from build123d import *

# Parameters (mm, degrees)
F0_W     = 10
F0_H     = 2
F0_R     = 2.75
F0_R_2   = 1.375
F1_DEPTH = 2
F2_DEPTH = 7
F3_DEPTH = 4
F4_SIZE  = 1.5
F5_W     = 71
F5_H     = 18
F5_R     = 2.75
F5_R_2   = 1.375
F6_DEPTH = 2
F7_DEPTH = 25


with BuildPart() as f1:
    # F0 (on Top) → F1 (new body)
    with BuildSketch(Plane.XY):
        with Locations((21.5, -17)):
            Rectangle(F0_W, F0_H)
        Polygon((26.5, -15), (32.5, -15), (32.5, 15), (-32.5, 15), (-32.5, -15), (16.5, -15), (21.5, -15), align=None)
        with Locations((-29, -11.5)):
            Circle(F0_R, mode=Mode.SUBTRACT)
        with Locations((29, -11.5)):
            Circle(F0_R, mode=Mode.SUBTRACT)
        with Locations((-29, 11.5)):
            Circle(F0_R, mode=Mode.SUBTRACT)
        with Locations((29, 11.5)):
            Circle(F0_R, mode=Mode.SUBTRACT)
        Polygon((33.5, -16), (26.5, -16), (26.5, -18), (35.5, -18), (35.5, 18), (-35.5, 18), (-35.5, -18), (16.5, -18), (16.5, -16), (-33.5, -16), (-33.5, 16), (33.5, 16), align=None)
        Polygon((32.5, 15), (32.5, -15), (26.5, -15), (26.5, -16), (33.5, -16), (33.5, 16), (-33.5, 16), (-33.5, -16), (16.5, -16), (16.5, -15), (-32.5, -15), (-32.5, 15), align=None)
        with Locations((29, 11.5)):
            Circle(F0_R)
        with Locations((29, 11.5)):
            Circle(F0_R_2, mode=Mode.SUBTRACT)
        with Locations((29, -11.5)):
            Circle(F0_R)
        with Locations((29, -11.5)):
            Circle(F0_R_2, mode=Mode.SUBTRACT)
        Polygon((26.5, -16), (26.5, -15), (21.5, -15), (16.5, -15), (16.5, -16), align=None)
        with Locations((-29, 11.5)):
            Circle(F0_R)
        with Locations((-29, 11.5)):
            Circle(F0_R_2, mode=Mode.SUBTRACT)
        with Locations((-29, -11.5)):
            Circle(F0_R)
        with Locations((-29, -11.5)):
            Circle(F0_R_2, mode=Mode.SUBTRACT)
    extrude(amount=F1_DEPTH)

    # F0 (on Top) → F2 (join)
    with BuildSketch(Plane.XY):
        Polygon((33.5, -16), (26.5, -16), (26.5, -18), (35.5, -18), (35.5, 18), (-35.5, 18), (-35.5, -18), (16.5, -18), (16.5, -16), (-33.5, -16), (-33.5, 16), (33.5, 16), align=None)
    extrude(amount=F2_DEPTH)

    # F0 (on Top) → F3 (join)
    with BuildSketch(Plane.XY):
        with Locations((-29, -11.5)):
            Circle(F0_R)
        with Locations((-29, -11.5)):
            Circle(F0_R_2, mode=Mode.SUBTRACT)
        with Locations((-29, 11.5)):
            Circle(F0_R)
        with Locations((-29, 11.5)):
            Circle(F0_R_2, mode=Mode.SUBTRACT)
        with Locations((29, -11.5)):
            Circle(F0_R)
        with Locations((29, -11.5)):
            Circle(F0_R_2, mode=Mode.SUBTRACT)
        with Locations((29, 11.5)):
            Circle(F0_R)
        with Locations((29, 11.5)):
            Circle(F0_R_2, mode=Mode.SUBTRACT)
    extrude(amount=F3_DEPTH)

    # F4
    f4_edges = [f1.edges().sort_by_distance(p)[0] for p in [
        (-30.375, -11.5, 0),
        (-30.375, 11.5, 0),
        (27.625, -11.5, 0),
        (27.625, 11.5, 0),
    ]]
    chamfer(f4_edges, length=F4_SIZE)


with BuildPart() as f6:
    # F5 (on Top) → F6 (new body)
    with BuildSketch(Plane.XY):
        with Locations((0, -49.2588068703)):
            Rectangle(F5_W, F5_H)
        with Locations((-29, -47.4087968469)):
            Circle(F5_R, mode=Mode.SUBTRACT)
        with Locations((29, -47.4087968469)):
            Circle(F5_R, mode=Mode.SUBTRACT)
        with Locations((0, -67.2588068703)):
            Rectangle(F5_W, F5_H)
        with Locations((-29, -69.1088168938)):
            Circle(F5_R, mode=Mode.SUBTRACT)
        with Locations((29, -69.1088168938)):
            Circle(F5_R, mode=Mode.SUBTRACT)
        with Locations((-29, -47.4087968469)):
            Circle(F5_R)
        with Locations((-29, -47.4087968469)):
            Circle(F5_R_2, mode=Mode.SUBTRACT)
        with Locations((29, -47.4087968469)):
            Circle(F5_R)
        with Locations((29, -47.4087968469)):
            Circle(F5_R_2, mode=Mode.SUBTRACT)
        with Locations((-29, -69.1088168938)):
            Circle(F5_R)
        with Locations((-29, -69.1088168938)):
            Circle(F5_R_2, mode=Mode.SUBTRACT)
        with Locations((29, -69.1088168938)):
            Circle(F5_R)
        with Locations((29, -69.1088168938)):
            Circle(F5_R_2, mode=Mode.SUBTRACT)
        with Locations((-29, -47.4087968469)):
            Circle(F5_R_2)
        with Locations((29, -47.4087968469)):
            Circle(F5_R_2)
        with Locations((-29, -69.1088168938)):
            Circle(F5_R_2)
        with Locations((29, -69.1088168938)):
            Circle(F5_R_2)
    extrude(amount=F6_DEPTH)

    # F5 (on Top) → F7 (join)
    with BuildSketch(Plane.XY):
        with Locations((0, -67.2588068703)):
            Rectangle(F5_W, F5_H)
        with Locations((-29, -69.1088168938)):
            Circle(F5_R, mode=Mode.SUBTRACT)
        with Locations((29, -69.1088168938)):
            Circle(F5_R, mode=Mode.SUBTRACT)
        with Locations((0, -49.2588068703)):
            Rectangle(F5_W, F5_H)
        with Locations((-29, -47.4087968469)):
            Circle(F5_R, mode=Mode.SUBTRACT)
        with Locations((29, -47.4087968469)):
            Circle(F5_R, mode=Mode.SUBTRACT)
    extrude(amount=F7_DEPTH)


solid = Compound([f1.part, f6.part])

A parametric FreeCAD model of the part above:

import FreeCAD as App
import Part
import Sketcher

V = App.Vector
Q = App.Units.Quantity


def edges_at(feature, points):
    """Names of the edges that pass closest to the given points."""
    edges = feature.Shape.Edges
    near = lambda p: min(range(len(edges)), key=lambda i: edges[i].distToShape(Part.Vertex(*p))[0])
    return sorted({f"Edge{near(p) + 1}" for p in points})


def add_polygon(sketch, points):
    """Adds a closed chain of lines whose ends are joined by coincident constraints."""
    first, n = sketch.GeometryCount, len(points)
    for a, b in zip(points, points[1:] + points[:1]):
        sketch.addGeometry(Part.LineSegment(App.Vector(*a, 0), App.Vector(*b, 0)), False)
    for i in range(n):
        sketch.addConstraint(Sketcher.Constraint("Coincident", first + i, 2, first + (i + 1) % n, 1))

doc = App.newDocument("Part")
body = doc.addObject("PartDesign::Body", "Body")

sketch1 = doc.addObject("Sketcher::SketchObject", "Sketch")
body.addObject(sketch1)
sketch1.AttachmentSupport = (doc.XY_Plane, [""])
sketch1.MapMode = "FlatFace"
add_polygon(sketch1, [(35.5, -18), (35.5, 18), (-35.5, 18), (-35.5, -18)])
sketch1.addGeometry(Part.Circle(V(-29, -11.5, 0), V(0, 0, 1), 1.4), False)
sketch1.addGeometry(Part.Circle(V(29, -11.5, 0), V(0, 0, 1), 1.4), False)
sketch1.addGeometry(Part.Circle(V(-29, 11.5, 0), V(0, 0, 1), 1.4), False)
sketch1.addGeometry(Part.Circle(V(29, 11.5, 0), V(0, 0, 1), 1.4), False)
sketch1.addConstraint([
    Sketcher.Constraint("Vertical", 0),
    Sketcher.Constraint("Horizontal", 1),
    Sketcher.Constraint("Vertical", 2),
    Sketcher.Constraint("Horizontal", 3),
    Sketcher.Constraint("Equal", 4, 5),
    Sketcher.Constraint("Equal", 5, 6),
    Sketcher.Constraint("Equal", 6, 7),
    Sketcher.Constraint("Symmetric", 5, 3, 6, 3, -1, 1),
    Sketcher.Constraint("Symmetric", 4, 3, 7, 3, -1, 1),
    Sketcher.Constraint("Symmetric", 0, 2, 2, 2, -1, 1),
    Sketcher.Constraint("Symmetric", 4, 3, 5, 3, -2),
    Sketcher.Constraint("Diameter", 4, Q("2.75 mm")),
    Sketcher.Constraint("DistanceX", 1, 2, 1, 1, Q("71 mm")),
    Sketcher.Constraint("DistanceY", 0, 1, 0, 2, Q("36 mm")),
    Sketcher.Constraint("DistanceX", 4, 3, -1, 1, Q("29 mm")),
    Sketcher.Constraint("DistanceY", 4, 3, 6, 3, Q("23 mm")),
])
pad1 = doc.addObject("PartDesign::Pad", "Pad")
body.addObject(pad1)
pad1.Profile = sketch1
pad1.Length = 2

sketch2 = doc.addObject("Sketcher::SketchObject", "Sketch001")
body.addObject(sketch2)
sketch2.AttachmentSupport = (doc.XY_Plane, [""])
sketch2.MapMode = "FlatFace"
add_polygon(sketch2, [(33.5, -16), (26.5, -16), (26.5, -18), (35.5, -18), (35.5, 18), (-35.5, 18), (-35.5, -18), (16.5, -18), (16.5, -16), (-33.5, -16), (-33.5, 16), (33.5, 16)])
sketch2.addConstraint([
    Sketcher.Constraint("Horizontal", 0),
    Sketcher.Constraint("Vertical", 1),
    Sketcher.Constraint("Horizontal", 2),
    Sketcher.Constraint("Vertical", 3),
    Sketcher.Constraint("Horizontal", 4),
    Sketcher.Constraint("Vertical", 5),
    Sketcher.Constraint("Horizontal", 6),
    Sketcher.Constraint("Vertical", 7),
    Sketcher.Constraint("Horizontal", 8),
    Sketcher.Constraint("Vertical", 9),
    Sketcher.Constraint("Horizontal", 10),
    Sketcher.Constraint("Vertical", 11),
    Sketcher.Constraint("Symmetric", 2, 2, 4, 2, -1, 1),
    Sketcher.Constraint("Symmetric", 8, 2, 10, 2, -1, 1),
    Sketcher.Constraint("Horizontal", 2, 2, 5, 2),
    Sketcher.Constraint("Horizontal", 0, 2, 7, 2),
    Sketcher.Constraint("DistanceX", 0, 2, 0, 1, Q("7 mm")),
    Sketcher.Constraint("DistanceX", 2, 1, 2, 2, Q("9 mm")),
    Sketcher.Constraint("DistanceX", 4, 2, 4, 1, Q("71 mm")),
    Sketcher.Constraint("DistanceX", 6, 1, 6, 2, Q("52 mm")),
    Sketcher.Constraint("DistanceY", 1, 2, 1, 1, Q("2 mm")),
    Sketcher.Constraint("DistanceY", 3, 1, 3, 2, Q("36 mm")),
])
pad2 = doc.addObject("PartDesign::Pad", "Pad001")
body.addObject(pad2)
pad2.Profile = sketch2
pad2.Length = 7

sketch3 = doc.addObject("Sketcher::SketchObject", "Sketch002")
body.addObject(sketch3)
sketch3.AttachmentSupport = (doc.XY_Plane, [""])
sketch3.MapMode = "FlatFace"
sketch3.addGeometry([
    Part.Circle(V(-29, -11.5, 0), V(0, 0, 1), 2.8),
    Part.Circle(V(-29, -11.5, 0), V(0, 0, 1), 1.4),
    Part.Circle(V(-29, 11.5, 0), V(0, 0, 1), 2.8),
    Part.Circle(V(-29, 11.5, 0), V(0, 0, 1), 1.4),
    Part.Circle(V(29, -11.5, 0), V(0, 0, 1), 2.8),
    Part.Circle(V(29, -11.5, 0), V(0, 0, 1), 1.4),
    Part.Circle(V(29, 11.5, 0), V(0, 0, 1), 2.8),
    Part.Circle(V(29, 11.5, 0), V(0, 0, 1), 1.4),
], False)
sketch3.addConstraint([
    Sketcher.Constraint("Coincident", 1, 3, 0, 3),
    Sketcher.Constraint("Coincident", 3, 3, 2, 3),
    Sketcher.Constraint("Coincident", 5, 3, 4, 3),
    Sketcher.Constraint("Coincident", 7, 3, 6, 3),
    Sketcher.Constraint("Equal", 0, 2),
    Sketcher.Constraint("Equal", 1, 3),
    Sketcher.Constraint("Equal", 2, 4),
    Sketcher.Constraint("Equal", 3, 5),
    Sketcher.Constraint("Equal", 4, 6),
    Sketcher.Constraint("Equal", 5, 7),
    Sketcher.Constraint("Symmetric", 2, 3, 4, 3, -1, 1),
    Sketcher.Constraint("Symmetric", 0, 3, 6, 3, -1, 1),
    Sketcher.Constraint("Symmetric", 0, 3, 4, 3, -2),
    Sketcher.Constraint("Diameter", 0, Q("5.5 mm")),
    Sketcher.Constraint("Diameter", 1, Q("2.75 mm")),
    Sketcher.Constraint("DistanceX", 0, 3, -1, 1, Q("29 mm")),
    Sketcher.Constraint("DistanceY", 0, 3, 2, 3, Q("23 mm")),
])
pad3 = doc.addObject("PartDesign::Pad", "Pad002")
body.addObject(pad3)
pad3.Profile = sketch3
pad3.Length = 4
doc.recompute()

chamfer = doc.addObject("PartDesign::Chamfer", "Chamfer")
body.addObject(chamfer)
chamfer.Base = (pad3, edges_at(pad3, [
    (-30.375, -11.5, 0),
    (-30.375, 11.5, 0),
    (27.625, -11.5, 0),
    (27.625, 11.5, 0),
]))
chamfer.Size = 1.5
body2 = doc.addObject("PartDesign::Body", "Body001")

sketch4 = doc.addObject("Sketcher::SketchObject", "Sketch003")
body2.addObject(sketch4)
sketch4.AttachmentSupport = (doc.getObject("XY_Plane001"), [""])
sketch4.MapMode = "FlatFace"
add_polygon(sketch4, [(-36, -40), (-36, -76), (36, -76), (36, -40)])
sketch4.addConstraint([
    Sketcher.Constraint("Vertical", 0),
    Sketcher.Constraint("Horizontal", 1),
    Sketcher.Constraint("Vertical", 2),
    Sketcher.Constraint("Horizontal", 3),
    Sketcher.Constraint("DistanceX", 1, 1, 1, 2, Q("71 mm")),
    Sketcher.Constraint("DistanceY", 0, 2, 0, 1, Q("36 mm")),
    Sketcher.Constraint("DistanceX", 0, 2, -1, 1, Q("35.5 mm")),
    Sketcher.Constraint("DistanceY", 0, 2, -1, 1, Q("76.258807 mm")),
])
pad4 = doc.addObject("PartDesign::Pad", "Pad003")
body2.addObject(pad4)
pad4.Profile = sketch4
pad4.Length = 2

sketch5 = doc.addObject("Sketcher::SketchObject", "Sketch004")
body2.addObject(sketch5)
sketch5.AttachmentSupport = (doc.getObject("XY_Plane001"), [""])
sketch5.MapMode = "FlatFace"
add_polygon(sketch5, [(-35.5, -76.3), (35.5, -76.3), (35.5, -40.3), (-35.5, -40.3)])
sketch5.addGeometry(Part.Circle(V(-29, -69.1, 0), V(0, 0, 1), 2.8), False)
sketch5.addGeometry(Part.Circle(V(29, -69.1, 0), V(0, 0, 1), 2.8), False)
sketch5.addGeometry(Part.Circle(V(-29, -47.4, 0), V(0, 0, 1), 2.8), False)
sketch5.addGeometry(Part.Circle(V(29, -47.4, 0), V(0, 0, 1), 2.8), False)
sketch5.addConstraint([
    Sketcher.Constraint("Horizontal", 0),
    Sketcher.Constraint("Vertical", 1),
    Sketcher.Constraint("Horizontal", 2),
    Sketcher.Constraint("Vertical", 3),
    Sketcher.Constraint("Equal", 4, 5),
    Sketcher.Constraint("Equal", 5, 6),
    Sketcher.Constraint("Equal", 6, 7),
    Sketcher.Constraint("Symmetric", 4, 3, 5, 3, -2),
    Sketcher.Constraint("Symmetric", 6, 3, 7, 3, -2),
    Sketcher.Constraint("Vertical", 4, 3, 6, 3),
    Sketcher.Constraint("Diameter", 4, Q("5.5 mm")),
    Sketcher.Constraint("DistanceX", 0, 1, 0, 2, Q("71 mm")),
    Sketcher.Constraint("DistanceY", 1, 1, 1, 2, Q("36 mm")),
    Sketcher.Constraint("DistanceX", 4, 3, -1, 1, Q("29 mm")),
    Sketcher.Constraint("DistanceX", -1, 1, 0, 2, Q("35.5 mm")),
    Sketcher.Constraint("DistanceY", 4, 3, 6, 3, Q("21.70002 mm")),
    Sketcher.Constraint("DistanceY", 0, 2, 5, 3, Q("7.14999 mm")),
    Sketcher.Constraint("DistanceY", 4, 3, -1, 1, Q("69.108817 mm")),
])
pad5 = doc.addObject("PartDesign::Pad", "Pad004")
body2.addObject(pad5)
pad5.Profile = sketch5
pad5.Length = 25

doc.recompute()
